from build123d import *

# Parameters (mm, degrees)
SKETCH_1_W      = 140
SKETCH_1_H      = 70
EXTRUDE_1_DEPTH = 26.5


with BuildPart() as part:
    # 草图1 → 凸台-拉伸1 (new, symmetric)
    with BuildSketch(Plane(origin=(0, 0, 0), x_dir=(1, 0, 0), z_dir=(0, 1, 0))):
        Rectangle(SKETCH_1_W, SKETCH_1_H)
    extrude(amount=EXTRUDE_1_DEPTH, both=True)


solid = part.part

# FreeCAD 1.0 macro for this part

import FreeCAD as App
import Part
import Sketcher

V = App.Vector


def add_polygon(sketch, points):
    """Adds a closed chain of lines whose ends are joined by coincident constraints."""
    first, n = sketch.GeometryCount, len(points)
    for a, b in zip(points, points[1:] + points[:1]):
        sketch.addGeometry(Part.LineSegment(App.Vector(*a, 0), App.Vector(*b, 0)), False)
    for i in range(n):
        sketch.addConstraint(Sketcher.Constraint("Coincident", first + i, 2, first + (i + 1) % n, 1))

doc = App.newDocument("Part")
body = doc.addObject("PartDesign::Body", "Body")

# Sketch on XZ plane
sketch1 = body.newObject("Sketcher::SketchObject", "Sketch")
sketch1.AttachmentSupport = (doc.getObject("XZ_Plane"), [""])
sketch1.MapMode = "FlatFace"
add_polygon(sketch1, [(-70, -35), (-70, 35), (70, 35), (70, -35)])  # lines 0-3
sketch1.addConstraint([
    Sketcher.Constraint("Vertical", 0),
    Sketcher.Constraint("Horizontal", 1),
    Sketcher.Constraint("Vertical", 2),
    Sketcher.Constraint("Horizontal", 3),
    Sketcher.Constraint("Symmetric", 0, 2, 2, 2, -1, 1),
    Sketcher.Constraint("DistanceX", 1, 1, 1, 2, 140.0),
    Sketcher.Constraint("DistanceY", 0, 1, 0, 2, 70.0),
])
pad1 = body.newObject("PartDesign::Pad", "Pad")
pad1.Profile = sketch1
pad1.Length = 53
pad1.Midplane = True

doc.recompute()
